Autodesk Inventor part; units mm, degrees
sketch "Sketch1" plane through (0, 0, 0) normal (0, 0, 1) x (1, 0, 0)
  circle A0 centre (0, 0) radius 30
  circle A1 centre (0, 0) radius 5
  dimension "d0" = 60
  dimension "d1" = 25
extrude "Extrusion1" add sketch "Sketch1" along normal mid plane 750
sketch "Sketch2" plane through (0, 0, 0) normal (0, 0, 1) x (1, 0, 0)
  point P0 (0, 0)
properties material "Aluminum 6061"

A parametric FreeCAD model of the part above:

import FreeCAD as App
import Part
import Sketcher

V = App.Vector
Q = App.Units.Quantity

doc = App.newDocument("Part")
body = doc.addObject("PartDesign::Body", "Body")

# Sketch on XY plane
sketch1 = doc.addObject("Sketcher::SketchObject", "Sketch")
body.addObject(sketch1)
sketch1.AttachmentSupport = (doc.XY_Plane, [""])
sketch1.MapMode = "FlatFace"
sketch1.addGeometry(Part.Circle(V(0, 0, 0), V(0, 0, 1), 30), False)
sketch1.addGeometry(Part.Circle(V(0, 0, 0), V(0, 0, 1), 5), False)
sketch1.addConstraint(Sketcher.Constraint("Coincident", 0, 3, -1, 1))
sketch1.addConstraint(Sketcher.Constraint("Coincident", 1, 3, -1, 1))
sketch1.addConstraint(Sketcher.Constraint("Diameter", 0, Q("60 mm")))
sketch1.addConstraint(Sketcher.Constraint("Diameter", 1, Q("10 mm")))
pad1 = doc.addObject("PartDesign::Pad", "Pad")
body.addObject(pad1)
pad1.Profile = sketch1
pad1.Length = 750
pad1.Midplane = True

doc.recompute()
